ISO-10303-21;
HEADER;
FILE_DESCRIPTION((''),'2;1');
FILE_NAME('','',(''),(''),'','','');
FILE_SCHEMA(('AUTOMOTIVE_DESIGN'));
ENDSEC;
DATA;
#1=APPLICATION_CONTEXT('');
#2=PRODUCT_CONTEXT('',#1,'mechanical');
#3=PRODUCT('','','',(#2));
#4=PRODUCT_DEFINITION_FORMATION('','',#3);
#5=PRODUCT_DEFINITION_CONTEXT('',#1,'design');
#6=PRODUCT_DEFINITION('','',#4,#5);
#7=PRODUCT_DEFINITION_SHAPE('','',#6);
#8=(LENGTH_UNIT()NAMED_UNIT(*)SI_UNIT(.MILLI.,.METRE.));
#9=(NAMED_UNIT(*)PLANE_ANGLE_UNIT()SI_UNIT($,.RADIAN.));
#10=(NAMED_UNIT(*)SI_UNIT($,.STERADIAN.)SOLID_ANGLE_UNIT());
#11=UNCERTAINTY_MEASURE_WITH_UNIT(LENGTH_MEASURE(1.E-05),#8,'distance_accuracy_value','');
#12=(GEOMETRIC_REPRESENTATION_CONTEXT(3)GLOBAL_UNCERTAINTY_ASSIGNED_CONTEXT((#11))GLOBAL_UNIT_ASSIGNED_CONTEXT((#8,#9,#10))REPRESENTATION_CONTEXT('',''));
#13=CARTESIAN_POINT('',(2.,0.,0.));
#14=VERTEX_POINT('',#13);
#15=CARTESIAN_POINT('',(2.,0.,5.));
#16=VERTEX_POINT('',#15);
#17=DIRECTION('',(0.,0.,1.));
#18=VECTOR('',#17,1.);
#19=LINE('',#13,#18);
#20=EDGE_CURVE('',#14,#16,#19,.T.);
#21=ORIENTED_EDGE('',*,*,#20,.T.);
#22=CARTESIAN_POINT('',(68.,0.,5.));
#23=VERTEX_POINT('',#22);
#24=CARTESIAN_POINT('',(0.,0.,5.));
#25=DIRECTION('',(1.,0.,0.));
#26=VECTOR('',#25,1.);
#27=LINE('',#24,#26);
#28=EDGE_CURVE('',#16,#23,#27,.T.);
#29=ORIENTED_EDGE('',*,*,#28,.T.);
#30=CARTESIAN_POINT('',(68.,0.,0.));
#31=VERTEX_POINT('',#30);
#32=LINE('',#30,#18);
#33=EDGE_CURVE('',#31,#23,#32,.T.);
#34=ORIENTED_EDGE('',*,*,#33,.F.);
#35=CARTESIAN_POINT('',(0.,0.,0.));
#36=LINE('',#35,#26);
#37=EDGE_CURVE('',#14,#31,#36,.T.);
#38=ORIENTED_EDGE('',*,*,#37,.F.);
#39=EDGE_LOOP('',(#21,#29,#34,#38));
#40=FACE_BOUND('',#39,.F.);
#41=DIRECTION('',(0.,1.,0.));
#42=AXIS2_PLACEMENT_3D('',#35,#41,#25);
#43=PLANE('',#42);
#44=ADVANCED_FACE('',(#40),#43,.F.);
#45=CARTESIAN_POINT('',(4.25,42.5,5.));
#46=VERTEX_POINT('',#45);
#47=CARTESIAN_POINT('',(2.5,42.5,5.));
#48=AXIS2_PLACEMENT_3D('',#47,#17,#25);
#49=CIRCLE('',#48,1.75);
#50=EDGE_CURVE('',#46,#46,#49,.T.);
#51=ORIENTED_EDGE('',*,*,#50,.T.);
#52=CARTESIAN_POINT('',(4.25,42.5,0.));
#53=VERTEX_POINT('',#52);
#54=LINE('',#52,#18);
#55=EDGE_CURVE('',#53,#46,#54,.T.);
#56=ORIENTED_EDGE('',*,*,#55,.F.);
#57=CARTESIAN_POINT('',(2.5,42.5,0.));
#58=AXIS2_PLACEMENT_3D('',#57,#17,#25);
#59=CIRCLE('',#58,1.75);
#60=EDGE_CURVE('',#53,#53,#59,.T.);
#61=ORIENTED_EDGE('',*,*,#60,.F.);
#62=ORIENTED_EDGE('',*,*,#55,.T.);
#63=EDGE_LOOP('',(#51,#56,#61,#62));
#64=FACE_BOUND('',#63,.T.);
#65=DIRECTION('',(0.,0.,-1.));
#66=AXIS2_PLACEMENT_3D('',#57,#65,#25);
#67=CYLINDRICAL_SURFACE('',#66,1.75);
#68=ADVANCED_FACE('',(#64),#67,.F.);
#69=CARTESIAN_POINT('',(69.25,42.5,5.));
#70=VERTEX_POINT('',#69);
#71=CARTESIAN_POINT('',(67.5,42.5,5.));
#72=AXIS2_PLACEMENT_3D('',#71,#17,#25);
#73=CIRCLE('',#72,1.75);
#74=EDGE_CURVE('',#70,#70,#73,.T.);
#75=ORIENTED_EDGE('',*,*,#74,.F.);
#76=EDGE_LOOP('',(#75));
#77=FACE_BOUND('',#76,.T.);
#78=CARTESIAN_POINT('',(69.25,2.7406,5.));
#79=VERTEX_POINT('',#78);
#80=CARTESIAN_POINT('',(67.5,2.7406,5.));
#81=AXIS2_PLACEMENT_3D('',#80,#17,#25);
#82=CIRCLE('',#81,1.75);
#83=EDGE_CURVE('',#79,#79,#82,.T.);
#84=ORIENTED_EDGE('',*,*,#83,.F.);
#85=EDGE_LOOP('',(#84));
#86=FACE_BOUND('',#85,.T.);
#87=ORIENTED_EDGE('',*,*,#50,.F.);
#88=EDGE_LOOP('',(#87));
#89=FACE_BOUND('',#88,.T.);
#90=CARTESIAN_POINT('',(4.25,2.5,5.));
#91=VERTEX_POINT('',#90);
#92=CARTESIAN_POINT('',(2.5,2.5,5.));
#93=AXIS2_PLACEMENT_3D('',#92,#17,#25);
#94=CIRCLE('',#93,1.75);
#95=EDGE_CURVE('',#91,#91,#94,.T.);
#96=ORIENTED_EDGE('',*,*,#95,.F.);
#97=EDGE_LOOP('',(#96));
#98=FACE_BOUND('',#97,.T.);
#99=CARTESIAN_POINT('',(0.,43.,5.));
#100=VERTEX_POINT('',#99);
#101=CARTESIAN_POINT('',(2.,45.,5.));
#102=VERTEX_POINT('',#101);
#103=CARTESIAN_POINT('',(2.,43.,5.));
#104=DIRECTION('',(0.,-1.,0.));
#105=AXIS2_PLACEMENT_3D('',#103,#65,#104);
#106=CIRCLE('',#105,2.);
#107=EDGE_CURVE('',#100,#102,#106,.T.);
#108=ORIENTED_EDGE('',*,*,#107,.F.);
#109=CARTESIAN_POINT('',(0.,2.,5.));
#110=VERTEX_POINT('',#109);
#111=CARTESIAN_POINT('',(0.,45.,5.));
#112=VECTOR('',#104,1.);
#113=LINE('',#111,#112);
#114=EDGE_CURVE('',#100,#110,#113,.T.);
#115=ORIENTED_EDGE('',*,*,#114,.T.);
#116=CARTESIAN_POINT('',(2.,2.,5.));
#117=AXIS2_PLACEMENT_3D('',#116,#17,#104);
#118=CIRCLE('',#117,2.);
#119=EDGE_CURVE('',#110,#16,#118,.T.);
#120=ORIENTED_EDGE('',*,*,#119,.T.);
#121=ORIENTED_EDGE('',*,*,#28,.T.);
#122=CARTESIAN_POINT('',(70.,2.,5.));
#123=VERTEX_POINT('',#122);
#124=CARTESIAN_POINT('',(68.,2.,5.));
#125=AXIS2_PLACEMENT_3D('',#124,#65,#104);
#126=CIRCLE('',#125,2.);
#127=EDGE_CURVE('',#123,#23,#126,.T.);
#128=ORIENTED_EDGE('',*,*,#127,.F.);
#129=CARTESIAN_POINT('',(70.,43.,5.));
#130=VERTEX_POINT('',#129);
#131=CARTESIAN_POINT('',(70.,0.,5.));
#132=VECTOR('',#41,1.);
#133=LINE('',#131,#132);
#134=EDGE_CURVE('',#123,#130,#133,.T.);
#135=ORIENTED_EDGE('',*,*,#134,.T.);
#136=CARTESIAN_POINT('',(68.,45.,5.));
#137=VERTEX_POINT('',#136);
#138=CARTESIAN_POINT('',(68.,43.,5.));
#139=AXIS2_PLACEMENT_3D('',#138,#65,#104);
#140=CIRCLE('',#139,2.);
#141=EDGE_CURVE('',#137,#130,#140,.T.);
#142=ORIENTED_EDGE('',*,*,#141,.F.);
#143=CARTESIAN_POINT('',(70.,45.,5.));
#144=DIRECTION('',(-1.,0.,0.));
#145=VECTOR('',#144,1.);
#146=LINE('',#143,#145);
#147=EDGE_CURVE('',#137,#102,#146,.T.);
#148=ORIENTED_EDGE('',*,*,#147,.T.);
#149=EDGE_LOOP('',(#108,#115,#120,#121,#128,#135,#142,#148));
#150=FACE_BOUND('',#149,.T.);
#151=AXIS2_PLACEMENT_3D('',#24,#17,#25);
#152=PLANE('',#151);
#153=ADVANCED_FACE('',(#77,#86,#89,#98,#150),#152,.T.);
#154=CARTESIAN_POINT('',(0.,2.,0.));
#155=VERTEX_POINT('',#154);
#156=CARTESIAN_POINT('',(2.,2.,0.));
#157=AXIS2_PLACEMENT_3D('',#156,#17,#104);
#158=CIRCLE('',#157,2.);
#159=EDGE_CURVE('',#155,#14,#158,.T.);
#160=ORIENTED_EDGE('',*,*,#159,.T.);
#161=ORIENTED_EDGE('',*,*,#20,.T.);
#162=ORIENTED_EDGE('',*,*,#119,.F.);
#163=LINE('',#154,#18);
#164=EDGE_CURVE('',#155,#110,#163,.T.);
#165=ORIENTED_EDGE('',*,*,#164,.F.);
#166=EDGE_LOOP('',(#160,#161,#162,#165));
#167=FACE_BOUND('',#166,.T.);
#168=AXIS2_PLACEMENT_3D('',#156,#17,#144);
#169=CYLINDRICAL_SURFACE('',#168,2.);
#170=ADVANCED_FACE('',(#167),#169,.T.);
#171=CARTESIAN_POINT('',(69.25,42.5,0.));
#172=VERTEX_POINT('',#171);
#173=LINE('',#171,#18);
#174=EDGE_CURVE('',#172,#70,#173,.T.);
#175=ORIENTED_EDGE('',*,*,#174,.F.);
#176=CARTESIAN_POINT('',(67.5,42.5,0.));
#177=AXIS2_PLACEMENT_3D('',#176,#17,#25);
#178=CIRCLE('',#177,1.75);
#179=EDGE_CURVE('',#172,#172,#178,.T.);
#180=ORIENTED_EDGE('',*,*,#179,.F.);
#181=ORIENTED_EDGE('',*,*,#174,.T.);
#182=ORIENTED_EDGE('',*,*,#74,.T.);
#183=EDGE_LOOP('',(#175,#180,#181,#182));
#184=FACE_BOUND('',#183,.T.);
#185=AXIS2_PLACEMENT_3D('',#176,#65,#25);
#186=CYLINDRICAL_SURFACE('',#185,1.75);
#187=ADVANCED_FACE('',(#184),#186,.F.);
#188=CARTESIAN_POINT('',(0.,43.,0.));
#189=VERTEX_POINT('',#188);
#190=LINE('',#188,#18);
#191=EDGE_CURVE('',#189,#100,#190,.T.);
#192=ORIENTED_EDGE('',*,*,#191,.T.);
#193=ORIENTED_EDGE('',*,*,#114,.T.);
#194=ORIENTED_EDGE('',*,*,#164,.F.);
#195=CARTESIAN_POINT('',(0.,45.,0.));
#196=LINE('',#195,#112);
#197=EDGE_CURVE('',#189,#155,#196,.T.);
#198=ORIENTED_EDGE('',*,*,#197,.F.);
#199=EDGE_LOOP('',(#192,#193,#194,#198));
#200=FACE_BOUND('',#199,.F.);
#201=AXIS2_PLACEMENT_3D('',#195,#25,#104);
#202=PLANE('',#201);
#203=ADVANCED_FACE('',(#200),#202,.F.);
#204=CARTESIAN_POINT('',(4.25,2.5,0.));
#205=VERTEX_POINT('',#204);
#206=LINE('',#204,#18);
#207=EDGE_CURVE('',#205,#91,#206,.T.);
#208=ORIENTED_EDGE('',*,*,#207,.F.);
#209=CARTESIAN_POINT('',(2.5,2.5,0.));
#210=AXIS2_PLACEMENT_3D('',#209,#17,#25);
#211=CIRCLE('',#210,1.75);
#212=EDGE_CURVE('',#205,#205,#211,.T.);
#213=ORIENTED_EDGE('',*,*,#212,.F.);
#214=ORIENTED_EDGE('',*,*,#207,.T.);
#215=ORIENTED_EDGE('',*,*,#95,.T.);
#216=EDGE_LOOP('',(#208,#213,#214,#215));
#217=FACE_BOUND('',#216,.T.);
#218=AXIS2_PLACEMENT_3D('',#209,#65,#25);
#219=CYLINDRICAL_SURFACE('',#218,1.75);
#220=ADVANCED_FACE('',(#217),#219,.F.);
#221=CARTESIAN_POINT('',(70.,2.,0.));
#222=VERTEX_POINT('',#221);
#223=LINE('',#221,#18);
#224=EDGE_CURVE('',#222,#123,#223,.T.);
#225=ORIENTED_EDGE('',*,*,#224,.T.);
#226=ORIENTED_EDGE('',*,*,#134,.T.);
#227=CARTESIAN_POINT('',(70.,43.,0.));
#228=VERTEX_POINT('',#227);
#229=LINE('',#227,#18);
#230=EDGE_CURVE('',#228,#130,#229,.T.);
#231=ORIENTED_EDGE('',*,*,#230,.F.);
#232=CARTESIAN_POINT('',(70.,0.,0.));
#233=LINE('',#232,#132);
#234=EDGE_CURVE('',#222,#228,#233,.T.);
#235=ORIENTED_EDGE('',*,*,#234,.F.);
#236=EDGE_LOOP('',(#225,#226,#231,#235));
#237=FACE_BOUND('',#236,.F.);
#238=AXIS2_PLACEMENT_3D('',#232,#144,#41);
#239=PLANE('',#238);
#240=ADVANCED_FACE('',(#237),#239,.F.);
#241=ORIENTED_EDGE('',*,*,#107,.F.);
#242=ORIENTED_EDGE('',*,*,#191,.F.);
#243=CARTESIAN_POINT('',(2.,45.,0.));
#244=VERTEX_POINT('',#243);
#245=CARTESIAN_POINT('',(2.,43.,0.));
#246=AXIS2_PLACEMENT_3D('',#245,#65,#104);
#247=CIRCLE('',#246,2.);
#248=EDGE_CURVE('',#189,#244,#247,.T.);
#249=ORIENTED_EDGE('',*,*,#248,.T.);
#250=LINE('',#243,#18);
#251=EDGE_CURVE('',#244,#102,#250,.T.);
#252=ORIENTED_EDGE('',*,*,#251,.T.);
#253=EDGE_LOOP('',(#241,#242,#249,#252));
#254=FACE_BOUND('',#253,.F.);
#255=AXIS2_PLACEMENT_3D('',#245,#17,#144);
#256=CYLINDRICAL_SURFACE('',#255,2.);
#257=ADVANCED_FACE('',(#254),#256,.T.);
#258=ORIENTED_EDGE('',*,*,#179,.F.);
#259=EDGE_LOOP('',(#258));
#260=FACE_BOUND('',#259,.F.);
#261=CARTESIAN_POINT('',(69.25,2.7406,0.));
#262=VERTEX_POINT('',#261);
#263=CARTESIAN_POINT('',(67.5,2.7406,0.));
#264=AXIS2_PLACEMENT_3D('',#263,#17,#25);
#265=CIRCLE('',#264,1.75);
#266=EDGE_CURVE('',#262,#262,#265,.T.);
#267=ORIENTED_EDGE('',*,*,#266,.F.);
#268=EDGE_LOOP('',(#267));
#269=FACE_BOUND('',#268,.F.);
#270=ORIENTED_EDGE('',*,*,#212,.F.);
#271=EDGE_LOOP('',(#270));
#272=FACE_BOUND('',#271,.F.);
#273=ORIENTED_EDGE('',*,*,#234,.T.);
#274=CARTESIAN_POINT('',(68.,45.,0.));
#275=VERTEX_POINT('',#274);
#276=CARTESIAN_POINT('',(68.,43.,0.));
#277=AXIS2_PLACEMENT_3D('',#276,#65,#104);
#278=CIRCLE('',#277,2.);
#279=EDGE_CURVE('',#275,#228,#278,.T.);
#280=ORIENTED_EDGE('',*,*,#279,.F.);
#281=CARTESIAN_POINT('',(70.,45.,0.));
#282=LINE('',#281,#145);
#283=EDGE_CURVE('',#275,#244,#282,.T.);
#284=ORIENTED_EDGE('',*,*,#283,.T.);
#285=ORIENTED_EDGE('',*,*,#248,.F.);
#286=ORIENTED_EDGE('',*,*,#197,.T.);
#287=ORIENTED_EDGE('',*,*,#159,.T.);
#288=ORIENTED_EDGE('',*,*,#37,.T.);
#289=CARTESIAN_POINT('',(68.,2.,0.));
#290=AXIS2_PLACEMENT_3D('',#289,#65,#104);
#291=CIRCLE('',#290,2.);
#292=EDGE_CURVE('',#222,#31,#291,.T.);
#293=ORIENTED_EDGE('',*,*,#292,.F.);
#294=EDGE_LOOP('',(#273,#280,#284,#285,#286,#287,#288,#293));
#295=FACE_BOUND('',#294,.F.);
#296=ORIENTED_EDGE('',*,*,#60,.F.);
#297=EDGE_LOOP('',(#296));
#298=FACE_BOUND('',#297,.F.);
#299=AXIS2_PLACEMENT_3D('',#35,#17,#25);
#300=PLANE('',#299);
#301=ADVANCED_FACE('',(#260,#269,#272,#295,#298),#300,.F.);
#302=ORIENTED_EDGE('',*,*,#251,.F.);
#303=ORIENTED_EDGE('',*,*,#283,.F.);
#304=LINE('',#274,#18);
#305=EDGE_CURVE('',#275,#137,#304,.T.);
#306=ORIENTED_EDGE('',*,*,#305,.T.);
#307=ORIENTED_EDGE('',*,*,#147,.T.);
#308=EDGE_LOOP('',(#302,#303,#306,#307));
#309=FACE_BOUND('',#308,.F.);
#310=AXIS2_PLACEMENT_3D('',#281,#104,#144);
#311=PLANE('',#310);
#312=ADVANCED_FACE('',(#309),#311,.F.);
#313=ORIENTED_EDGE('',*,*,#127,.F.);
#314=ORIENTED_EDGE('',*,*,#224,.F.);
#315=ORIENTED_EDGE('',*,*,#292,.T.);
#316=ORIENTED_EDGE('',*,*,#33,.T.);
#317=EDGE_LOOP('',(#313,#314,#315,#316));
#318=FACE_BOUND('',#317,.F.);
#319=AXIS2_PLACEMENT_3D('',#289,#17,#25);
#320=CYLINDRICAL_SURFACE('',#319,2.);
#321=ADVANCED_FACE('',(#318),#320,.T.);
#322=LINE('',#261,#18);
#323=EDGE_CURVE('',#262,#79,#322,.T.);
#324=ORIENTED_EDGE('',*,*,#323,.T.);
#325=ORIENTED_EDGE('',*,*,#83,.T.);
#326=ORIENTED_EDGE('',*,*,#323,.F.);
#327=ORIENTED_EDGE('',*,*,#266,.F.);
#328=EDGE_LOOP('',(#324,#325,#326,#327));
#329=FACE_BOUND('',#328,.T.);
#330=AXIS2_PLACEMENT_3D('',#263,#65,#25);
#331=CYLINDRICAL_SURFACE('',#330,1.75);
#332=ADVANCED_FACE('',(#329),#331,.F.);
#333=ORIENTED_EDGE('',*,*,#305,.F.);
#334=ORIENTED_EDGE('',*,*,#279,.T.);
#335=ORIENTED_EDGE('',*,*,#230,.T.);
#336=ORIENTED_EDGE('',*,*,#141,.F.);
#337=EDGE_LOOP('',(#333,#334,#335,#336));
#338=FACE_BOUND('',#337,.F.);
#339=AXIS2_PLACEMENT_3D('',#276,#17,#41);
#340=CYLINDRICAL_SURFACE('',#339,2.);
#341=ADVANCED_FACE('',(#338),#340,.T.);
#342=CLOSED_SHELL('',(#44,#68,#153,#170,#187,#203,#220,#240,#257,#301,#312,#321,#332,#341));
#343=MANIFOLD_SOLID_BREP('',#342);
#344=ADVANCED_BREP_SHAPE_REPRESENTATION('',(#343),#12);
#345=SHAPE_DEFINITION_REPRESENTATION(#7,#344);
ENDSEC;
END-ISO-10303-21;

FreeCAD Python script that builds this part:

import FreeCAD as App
import Part
import Sketcher


def edges_at(feature, points):
    """Names of the edges that pass closest to the given points."""
    edges = feature.Shape.Edges
    near = lambda p: min(range(len(edges)), key=lambda i: edges[i].distToShape(Part.Vertex(*p))[0])
    return sorted({f"Edge{near(p) + 1}" for p in points})


def add_polygon(sketch, points):
    """Adds a closed chain of lines whose ends are joined by coincident constraints."""
    first, n = sketch.GeometryCount, len(points)
    for a, b in zip(points, points[1:] + points[:1]):
        sketch.addGeometry(Part.LineSegment(App.Vector(*a, 0), App.Vector(*b, 0)), False)
    for i in range(n):
        sketch.addConstraint(Sketcher.Constraint("Coincident", first + i, 2, first + (i + 1) % n, 1))

doc = App.newDocument("Part")
body = doc.addObject("PartDesign::Body", "Body")

sketch1 = body.newObject("Sketcher::SketchObject", "Sketch")
sketch1.AttachmentSupport = (doc.getObject("XY_Plane"), [""])
sketch1.MapMode = "FlatFace"
add_polygon(sketch1, [(0, 45), (0, 0), (70, 0), (70, 45)])
sketch1.addGeometry(Part.Circle(App.Vector(2.5, 2.5, 0), App.Vector(0, 0, 1), 1.75), False)
sketch1.addGeometry(Part.Circle(App.Vector(67.5, 2.7406, 0), App.Vector(0, 0, 1), 1.75), False)
sketch1.addGeometry(Part.Circle(App.Vector(2.5, 42.5, 0), App.Vector(0, 0, 1), 1.75), False)
sketch1.addGeometry(Part.Circle(App.Vector(67.5, 42.5, 0), App.Vector(0, 0, 1), 1.75), False)
sketch1.addConstraint(Sketcher.Constraint("Vertical", 0))
sketch1.addConstraint(Sketcher.Constraint("Horizontal", 1))
sketch1.addConstraint(Sketcher.Constraint("Vertical", 2))
sketch1.addConstraint(Sketcher.Constraint("Horizontal", 3))
sketch1.addConstraint(Sketcher.Constraint("Coincident", 0, 2, -1, 1))
sketch1.addConstraint(Sketcher.Constraint("Equal", 4, 5))
sketch1.addConstraint(Sketcher.Constraint("Equal", 5, 6))
sketch1.addConstraint(Sketcher.Constraint("Equal", 6, 7))
sketch1.addConstraint(Sketcher.Constraint("Horizontal", 6, 3, 7, 3))
sketch1.addConstraint(Sketcher.Constraint("Vertical", 4, 3, 6, 3))
sketch1.addConstraint(Sketcher.Constraint("Vertical", 5, 3, 7, 3))
sketch1.addConstraint(Sketcher.Constraint("Diameter", 4, 3.5))
sketch1.addConstraint(Sketcher.Constraint("DistanceX", 1, 1, 1, 2, 70.0))
sketch1.addConstraint(Sketcher.Constraint("DistanceY", 0, 2, 0, 1, 45.0))
sketch1.addConstraint(Sketcher.Constraint("DistanceX", 4, 3, 5, 3, 65.0))
sketch1.addConstraint(Sketcher.Constraint("DistanceY", 4, 3, 6, 3, 40.0))
sketch1.addConstraint(Sketcher.Constraint("DistanceX", -1, 1, 4, 3, 2.5))
sketch1.addConstraint(Sketcher.Constraint("DistanceY", -1, 1, 4, 3, 2.5))
sketch1.addConstraint(Sketcher.Constraint("DistanceY", -1, 1, 5, 3, 2.7406))
pad1 = body.newObject("PartDesign::Pad", "Pad")
pad1.Profile = sketch1
pad1.Length = 5
doc.recompute()

fillet = body.newObject("PartDesign::Fillet", "Fillet")
fillet.Base = (pad1, edges_at(pad1, [
    (0, 45, 2.5),
    (0, 0, 2.5),
    (70, 45, 2.5),
    (70, 0, 2.5),
]))
fillet.Radius = 2

doc.recompute()
